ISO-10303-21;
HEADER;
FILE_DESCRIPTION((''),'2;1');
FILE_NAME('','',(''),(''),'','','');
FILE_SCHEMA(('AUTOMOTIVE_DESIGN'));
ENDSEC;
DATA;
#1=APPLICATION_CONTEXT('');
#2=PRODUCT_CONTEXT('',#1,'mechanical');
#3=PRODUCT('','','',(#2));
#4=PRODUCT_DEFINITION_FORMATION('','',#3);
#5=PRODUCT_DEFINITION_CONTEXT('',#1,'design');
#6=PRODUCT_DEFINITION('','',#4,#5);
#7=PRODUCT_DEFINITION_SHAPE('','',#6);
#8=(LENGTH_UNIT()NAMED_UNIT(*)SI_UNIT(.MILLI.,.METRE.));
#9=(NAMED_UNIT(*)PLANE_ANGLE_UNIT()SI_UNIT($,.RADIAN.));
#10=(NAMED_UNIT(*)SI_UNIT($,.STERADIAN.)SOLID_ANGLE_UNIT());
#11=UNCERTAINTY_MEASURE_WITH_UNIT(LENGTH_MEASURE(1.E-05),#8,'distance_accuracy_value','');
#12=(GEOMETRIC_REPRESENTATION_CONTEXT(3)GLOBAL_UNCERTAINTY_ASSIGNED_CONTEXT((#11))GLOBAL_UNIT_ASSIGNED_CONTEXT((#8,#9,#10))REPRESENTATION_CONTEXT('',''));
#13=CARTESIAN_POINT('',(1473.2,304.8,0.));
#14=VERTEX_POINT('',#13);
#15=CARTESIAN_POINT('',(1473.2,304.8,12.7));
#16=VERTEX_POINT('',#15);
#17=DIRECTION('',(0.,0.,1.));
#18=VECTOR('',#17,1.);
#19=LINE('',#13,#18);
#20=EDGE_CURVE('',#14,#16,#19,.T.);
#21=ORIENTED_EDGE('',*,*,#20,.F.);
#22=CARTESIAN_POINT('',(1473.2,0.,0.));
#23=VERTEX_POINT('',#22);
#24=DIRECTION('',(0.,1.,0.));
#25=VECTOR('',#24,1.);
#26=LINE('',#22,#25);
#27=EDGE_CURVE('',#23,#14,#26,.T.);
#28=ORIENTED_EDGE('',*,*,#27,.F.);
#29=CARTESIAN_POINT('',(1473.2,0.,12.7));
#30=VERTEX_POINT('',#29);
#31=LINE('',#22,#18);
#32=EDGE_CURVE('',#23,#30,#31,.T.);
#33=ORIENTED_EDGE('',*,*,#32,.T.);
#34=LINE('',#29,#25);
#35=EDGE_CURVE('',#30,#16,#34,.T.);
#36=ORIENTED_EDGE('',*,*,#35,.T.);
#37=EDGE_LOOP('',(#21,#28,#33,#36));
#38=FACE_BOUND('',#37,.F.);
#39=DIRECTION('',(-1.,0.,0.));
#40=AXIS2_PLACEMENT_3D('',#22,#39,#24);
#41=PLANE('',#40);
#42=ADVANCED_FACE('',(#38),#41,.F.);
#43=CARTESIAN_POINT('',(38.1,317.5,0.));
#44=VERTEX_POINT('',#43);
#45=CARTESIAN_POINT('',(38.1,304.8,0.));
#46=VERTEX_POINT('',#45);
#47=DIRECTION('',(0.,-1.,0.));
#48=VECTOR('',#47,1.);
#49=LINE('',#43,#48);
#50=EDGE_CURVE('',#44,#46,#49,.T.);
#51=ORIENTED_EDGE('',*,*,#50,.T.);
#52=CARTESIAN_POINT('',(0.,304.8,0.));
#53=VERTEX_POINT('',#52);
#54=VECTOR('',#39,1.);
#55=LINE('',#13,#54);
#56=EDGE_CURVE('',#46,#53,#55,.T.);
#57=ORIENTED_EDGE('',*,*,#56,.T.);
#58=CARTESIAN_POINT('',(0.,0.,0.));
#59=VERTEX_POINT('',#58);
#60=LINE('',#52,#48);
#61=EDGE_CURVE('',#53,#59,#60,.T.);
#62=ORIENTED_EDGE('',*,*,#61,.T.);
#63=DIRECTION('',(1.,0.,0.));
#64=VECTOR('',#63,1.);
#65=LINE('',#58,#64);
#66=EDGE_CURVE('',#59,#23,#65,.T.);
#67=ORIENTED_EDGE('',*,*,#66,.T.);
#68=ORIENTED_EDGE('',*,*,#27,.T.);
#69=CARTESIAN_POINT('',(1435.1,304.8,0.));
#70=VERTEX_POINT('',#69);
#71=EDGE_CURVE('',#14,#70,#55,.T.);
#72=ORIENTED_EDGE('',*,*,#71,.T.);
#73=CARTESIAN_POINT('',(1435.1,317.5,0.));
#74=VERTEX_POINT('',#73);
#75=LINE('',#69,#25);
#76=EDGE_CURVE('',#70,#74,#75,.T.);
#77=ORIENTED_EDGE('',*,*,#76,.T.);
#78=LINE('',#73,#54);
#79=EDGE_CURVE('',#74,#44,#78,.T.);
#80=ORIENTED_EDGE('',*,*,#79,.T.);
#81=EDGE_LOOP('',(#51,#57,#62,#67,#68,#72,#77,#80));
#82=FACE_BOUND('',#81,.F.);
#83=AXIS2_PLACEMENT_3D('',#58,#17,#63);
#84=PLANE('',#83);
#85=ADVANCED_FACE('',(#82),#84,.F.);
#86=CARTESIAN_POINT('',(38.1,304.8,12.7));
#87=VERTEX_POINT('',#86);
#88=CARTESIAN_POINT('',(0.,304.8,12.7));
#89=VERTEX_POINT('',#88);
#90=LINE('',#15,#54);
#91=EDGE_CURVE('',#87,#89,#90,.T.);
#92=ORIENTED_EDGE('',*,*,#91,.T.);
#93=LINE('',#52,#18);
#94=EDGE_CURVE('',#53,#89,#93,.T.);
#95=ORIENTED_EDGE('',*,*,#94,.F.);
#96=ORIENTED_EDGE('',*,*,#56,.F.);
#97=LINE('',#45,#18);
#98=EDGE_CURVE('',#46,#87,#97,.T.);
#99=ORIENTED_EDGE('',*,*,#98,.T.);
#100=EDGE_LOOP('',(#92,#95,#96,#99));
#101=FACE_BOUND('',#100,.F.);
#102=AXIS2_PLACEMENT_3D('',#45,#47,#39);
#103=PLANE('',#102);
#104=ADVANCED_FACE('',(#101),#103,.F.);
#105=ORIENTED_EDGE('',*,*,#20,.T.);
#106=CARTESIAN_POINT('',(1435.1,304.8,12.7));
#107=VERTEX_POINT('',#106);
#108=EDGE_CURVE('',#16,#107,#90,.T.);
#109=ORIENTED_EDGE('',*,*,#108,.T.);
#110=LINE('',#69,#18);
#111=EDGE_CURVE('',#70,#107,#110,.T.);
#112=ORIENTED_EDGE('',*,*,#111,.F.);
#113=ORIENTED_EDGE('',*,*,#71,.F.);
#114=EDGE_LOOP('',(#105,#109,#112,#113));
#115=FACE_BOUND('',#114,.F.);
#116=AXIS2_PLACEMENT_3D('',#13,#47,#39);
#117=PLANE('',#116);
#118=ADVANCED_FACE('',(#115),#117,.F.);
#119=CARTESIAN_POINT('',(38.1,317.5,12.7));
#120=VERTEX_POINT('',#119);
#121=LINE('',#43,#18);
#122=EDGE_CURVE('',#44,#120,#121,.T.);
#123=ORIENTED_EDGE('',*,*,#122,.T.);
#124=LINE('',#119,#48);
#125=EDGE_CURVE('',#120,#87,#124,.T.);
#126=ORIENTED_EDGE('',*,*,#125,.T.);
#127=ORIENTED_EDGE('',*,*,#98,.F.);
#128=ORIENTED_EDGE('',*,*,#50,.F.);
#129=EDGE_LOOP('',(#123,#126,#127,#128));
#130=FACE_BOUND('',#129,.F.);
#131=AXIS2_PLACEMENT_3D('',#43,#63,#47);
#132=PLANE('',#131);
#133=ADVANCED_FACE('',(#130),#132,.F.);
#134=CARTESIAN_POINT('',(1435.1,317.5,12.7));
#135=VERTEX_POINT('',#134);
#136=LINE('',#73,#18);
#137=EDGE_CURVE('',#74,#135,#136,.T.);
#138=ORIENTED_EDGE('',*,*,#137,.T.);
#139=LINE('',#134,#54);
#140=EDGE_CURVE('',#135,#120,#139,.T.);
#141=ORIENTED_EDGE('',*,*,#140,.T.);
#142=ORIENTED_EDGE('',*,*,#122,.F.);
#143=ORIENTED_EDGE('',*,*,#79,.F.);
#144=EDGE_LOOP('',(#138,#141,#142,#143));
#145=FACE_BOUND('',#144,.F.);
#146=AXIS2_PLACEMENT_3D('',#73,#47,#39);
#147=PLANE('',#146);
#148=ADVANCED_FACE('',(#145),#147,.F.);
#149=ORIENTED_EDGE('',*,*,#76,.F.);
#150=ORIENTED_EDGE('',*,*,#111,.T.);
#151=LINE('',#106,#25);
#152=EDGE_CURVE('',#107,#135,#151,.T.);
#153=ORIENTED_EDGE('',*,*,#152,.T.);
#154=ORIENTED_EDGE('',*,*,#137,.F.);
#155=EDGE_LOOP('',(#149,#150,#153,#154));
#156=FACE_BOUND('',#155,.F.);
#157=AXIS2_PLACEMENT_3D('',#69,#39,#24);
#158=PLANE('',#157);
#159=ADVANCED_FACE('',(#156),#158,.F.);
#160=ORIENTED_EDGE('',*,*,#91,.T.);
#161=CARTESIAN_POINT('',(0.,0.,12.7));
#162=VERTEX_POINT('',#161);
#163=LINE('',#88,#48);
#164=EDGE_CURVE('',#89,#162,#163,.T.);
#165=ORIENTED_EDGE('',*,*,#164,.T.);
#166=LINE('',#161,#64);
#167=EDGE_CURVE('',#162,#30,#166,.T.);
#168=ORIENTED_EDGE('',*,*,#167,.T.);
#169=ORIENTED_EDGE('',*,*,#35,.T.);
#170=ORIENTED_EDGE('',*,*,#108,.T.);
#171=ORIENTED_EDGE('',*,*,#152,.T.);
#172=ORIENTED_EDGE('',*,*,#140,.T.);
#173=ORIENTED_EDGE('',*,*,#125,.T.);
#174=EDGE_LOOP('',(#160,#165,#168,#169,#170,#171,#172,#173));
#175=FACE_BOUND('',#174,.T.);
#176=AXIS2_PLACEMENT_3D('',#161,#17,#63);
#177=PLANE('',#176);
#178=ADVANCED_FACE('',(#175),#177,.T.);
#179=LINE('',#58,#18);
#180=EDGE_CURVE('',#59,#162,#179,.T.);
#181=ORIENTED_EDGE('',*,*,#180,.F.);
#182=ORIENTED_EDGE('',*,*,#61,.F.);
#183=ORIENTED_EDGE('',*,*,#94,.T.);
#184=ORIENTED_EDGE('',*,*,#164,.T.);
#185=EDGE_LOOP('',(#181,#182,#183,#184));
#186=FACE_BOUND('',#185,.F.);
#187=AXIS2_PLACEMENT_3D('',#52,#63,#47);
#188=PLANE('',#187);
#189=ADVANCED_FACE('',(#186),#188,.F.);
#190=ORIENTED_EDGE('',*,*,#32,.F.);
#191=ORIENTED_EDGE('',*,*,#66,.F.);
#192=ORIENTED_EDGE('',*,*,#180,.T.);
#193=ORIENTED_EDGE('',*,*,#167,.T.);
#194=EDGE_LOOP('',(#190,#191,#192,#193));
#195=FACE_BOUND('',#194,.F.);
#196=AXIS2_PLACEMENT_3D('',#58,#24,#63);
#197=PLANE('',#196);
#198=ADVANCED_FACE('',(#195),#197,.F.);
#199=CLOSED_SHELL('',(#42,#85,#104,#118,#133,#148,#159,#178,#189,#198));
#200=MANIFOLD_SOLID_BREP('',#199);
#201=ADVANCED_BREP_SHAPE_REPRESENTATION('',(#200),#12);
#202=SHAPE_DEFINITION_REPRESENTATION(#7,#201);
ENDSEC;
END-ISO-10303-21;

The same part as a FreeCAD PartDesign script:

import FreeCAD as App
import Part
import Sketcher
Q = App.Units.Quantity


def add_polygon(sketch, points):
    """Adds a closed chain of lines whose ends are joined by coincident constraints."""
    first, n = sketch.GeometryCount, len(points)
    for a, b in zip(points, points[1:] + points[:1]):
        sketch.addGeometry(Part.LineSegment(App.Vector(*a, 0), App.Vector(*b, 0)), False)
    for i in range(n):
        sketch.addConstraint(Sketcher.Constraint("Coincident", first + i, 2, first + (i + 1) % n, 1))

doc = App.newDocument("Part")
body = doc.addObject("PartDesign::Body", "Body")

sketch1 = body.newObject("Sketcher::SketchObject", "Sketch")
sketch1.AttachmentSupport = (doc.getObject("XY_Plane"), [""])
sketch1.MapMode = "FlatFace"
add_polygon(sketch1, [(0, 305), (0, 0), (1473, 0), (1473, 305), (1435, 305), (1435, 318), (38, 318), (38, 305)])
sketch1.addConstraint(Sketcher.Constraint("Vertical", 0))
sketch1.addConstraint(Sketcher.Constraint("Horizontal", 1))
sketch1.addConstraint(Sketcher.Constraint("Vertical", 2))
sketch1.addConstraint(Sketcher.Constraint("Horizontal", 3))
sketch1.addConstraint(Sketcher.Constraint("Vertical", 4))
sketch1.addConstraint(Sketcher.Constraint("Horizontal", 5))
sketch1.addConstraint(Sketcher.Constraint("Vertical", 6))
sketch1.addConstraint(Sketcher.Constraint("Horizontal", 7))
sketch1.addConstraint(Sketcher.Constraint("Coincident", 0, 2, -1, 1))
sketch1.addConstraint(Sketcher.Constraint("Horizontal", 3, 2, 6, 2))
sketch1.addConstraint(Sketcher.Constraint("Equal", 3, 7))
sketch1.addConstraint(Sketcher.Constraint("DistanceX", 1, 1, 1, 2, Q("58 in")))
sketch1.addConstraint(Sketcher.Constraint("DistanceY", 0, 2, 0, 1, Q("12 in")))
sketch1.addConstraint(Sketcher.Constraint("DistanceX", 3, 2, 3, 1, Q("1.5 in")))
sketch1.addConstraint(Sketcher.Constraint("DistanceY", 4, 1, 4, 2, Q("0.5 in")))
pad1 = body.newObject("PartDesign::Pad", "Pad")
pad1.Profile = sketch1
pad1.Length = Q("0.5 in")

doc.recompute()
